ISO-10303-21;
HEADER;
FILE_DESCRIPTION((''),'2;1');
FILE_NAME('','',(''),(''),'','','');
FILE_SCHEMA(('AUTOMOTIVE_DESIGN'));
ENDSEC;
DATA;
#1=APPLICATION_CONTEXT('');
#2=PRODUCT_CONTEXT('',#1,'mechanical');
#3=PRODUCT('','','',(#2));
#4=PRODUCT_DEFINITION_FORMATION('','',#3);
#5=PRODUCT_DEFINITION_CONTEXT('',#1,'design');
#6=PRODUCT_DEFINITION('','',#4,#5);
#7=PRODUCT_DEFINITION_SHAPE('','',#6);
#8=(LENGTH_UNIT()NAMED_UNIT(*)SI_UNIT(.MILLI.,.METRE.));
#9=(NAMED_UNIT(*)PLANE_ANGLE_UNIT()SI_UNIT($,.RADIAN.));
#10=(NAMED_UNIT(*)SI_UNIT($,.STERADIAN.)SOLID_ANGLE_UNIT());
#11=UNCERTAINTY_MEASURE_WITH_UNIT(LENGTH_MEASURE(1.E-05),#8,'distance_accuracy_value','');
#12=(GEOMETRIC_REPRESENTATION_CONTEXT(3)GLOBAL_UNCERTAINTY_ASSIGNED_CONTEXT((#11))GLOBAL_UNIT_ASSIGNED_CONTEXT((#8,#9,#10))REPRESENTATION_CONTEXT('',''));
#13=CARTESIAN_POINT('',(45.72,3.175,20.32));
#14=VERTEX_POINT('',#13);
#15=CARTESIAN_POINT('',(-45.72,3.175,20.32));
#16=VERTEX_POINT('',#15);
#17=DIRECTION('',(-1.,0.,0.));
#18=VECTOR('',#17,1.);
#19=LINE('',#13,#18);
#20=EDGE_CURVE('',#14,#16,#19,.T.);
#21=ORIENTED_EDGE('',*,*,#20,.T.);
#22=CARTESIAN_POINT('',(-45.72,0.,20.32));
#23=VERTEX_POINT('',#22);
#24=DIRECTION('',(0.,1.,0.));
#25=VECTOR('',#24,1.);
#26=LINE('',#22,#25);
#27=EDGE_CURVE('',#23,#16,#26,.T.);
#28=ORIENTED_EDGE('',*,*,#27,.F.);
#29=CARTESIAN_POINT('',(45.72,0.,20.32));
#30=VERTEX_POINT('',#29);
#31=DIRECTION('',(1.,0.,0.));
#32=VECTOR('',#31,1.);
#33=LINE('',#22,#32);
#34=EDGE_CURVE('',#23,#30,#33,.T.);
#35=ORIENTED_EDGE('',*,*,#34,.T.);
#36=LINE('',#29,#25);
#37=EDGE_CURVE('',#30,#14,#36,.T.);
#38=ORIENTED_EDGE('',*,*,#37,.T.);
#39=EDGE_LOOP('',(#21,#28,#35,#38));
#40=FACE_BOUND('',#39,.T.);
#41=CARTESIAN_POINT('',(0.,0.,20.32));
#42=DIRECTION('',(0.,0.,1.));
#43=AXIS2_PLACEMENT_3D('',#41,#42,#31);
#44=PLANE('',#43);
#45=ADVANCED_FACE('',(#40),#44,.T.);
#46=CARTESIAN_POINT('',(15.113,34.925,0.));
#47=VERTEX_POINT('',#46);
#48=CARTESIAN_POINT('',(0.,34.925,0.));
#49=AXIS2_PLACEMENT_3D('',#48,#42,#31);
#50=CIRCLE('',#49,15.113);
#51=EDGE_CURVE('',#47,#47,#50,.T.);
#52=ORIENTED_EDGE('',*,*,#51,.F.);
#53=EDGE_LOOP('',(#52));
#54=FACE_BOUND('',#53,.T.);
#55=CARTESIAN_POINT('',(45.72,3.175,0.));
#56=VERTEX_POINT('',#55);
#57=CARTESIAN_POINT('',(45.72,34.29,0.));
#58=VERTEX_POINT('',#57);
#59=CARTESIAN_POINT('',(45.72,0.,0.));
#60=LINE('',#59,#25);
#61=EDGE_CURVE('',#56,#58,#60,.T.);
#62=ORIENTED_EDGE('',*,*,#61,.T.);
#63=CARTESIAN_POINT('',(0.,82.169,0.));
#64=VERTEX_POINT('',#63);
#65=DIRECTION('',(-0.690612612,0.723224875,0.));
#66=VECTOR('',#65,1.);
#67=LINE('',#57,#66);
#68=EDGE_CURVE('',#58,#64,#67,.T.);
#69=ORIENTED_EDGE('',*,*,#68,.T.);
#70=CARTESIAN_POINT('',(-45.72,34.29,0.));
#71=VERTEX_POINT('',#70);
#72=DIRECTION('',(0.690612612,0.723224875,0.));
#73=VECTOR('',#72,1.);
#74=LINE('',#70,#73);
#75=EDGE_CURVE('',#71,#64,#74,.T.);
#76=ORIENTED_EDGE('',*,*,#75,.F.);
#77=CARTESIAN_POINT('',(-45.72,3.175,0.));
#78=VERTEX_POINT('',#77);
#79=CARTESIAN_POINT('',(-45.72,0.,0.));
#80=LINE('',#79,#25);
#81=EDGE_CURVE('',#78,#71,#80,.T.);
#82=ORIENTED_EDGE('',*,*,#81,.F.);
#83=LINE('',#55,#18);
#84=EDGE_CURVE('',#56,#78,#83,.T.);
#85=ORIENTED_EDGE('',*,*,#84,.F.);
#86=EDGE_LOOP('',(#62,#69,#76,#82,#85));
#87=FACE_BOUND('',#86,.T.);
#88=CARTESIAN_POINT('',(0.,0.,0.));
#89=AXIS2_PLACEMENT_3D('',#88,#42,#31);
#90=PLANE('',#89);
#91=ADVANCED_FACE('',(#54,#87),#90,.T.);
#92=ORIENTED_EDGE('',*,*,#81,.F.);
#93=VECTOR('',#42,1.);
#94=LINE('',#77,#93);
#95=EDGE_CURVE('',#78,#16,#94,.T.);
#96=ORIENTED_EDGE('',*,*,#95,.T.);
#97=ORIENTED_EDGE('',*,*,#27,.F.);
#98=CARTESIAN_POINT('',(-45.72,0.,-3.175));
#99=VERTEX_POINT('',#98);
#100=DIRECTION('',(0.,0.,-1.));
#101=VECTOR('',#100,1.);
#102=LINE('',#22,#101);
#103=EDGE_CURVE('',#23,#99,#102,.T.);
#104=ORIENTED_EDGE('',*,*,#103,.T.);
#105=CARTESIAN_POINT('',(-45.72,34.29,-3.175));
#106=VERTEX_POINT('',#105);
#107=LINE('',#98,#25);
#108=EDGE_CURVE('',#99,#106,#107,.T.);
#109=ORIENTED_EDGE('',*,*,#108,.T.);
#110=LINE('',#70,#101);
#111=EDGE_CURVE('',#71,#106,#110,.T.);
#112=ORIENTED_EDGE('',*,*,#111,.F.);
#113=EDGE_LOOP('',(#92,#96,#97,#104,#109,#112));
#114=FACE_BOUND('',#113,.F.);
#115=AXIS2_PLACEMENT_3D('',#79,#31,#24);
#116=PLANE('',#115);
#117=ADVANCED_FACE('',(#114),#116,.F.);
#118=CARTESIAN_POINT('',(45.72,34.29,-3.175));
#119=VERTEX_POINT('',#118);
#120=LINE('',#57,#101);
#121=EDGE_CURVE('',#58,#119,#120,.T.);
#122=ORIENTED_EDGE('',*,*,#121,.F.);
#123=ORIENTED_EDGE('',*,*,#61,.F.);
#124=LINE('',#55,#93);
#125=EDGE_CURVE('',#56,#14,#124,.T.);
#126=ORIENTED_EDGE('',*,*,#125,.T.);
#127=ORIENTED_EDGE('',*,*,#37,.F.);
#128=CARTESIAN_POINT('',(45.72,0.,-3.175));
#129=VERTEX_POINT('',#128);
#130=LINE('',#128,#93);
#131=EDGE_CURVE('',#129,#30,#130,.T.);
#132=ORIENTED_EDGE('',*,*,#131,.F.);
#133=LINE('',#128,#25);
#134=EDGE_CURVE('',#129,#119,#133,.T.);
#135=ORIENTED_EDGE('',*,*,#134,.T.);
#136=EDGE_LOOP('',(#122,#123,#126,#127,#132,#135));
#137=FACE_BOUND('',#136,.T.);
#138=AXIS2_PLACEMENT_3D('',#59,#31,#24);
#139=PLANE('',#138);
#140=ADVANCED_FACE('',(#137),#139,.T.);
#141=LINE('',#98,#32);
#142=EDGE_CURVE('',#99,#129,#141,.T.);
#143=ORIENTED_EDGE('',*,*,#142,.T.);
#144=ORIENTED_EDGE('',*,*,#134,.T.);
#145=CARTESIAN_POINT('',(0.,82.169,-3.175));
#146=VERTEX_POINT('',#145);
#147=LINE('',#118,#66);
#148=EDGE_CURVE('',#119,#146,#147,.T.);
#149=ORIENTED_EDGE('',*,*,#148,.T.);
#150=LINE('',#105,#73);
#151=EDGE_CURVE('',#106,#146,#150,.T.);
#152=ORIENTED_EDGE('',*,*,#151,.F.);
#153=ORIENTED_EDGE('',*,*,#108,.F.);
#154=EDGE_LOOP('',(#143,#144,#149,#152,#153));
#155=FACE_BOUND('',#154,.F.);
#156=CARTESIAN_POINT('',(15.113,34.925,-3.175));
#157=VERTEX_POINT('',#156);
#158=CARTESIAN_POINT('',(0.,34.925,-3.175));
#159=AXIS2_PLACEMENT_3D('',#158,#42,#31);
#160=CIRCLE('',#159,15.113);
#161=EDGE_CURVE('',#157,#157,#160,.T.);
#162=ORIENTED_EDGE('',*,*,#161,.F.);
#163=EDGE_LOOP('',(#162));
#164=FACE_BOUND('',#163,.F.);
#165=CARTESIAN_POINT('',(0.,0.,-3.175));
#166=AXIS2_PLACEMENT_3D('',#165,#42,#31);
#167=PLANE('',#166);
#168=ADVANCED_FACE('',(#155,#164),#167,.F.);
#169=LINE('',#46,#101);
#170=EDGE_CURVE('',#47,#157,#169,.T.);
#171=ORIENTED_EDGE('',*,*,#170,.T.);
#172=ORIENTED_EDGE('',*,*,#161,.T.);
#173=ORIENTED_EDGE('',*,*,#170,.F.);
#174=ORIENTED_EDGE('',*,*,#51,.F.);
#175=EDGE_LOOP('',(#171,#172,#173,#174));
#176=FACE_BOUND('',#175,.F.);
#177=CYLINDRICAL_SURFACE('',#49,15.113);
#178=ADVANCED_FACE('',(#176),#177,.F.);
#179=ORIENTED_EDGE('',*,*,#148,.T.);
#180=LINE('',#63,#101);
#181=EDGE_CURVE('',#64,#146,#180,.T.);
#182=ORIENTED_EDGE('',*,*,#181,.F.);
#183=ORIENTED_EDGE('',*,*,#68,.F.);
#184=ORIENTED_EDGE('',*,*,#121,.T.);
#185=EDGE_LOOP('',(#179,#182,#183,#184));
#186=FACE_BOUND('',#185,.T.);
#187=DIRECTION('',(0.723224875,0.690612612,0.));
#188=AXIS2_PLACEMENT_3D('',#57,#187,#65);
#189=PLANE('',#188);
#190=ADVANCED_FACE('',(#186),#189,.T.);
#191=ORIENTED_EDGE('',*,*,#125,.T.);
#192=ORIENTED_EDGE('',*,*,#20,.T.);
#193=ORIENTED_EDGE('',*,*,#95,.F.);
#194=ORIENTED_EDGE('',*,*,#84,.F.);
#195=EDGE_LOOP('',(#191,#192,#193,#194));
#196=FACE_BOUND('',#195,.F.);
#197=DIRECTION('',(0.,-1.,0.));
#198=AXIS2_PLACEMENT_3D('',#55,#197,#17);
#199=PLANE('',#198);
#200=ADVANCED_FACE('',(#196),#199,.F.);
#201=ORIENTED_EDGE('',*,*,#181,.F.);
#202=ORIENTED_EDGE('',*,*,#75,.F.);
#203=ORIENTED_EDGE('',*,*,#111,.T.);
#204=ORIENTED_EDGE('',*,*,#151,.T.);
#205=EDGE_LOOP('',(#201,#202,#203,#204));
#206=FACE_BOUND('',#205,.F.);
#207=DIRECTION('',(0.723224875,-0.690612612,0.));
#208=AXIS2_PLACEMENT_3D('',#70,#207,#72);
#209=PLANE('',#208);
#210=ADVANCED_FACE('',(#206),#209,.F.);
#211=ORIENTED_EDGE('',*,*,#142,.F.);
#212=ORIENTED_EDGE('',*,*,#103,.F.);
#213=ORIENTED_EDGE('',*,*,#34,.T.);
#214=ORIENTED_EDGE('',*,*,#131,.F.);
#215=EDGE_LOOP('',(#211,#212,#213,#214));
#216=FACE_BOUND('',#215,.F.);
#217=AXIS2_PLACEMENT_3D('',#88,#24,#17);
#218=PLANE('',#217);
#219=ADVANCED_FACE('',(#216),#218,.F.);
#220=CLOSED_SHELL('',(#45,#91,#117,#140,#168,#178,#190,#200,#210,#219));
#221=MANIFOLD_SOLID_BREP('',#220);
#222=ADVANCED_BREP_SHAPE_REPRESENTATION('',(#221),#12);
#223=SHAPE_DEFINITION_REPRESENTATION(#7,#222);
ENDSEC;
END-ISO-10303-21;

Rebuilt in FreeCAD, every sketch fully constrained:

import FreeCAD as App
import Part
import Sketcher
Q = App.Units.Quantity

doc = App.newDocument("Part")
body = doc.addObject("PartDesign::Body", "Body")

# Sketch on XY plane
sketch1 = doc.addObject("Sketcher::SketchObject", "Sketch")
body.addObject(sketch1)
sketch1.AttachmentSupport = (doc.XY_Plane, [""])
sketch1.MapMode = "FlatFace"
sketch1.addGeometry([
    Part.LineSegment(App.Vector(-46, 0, 0), App.Vector(46, 0, 0)),  # 0
    Part.LineSegment(App.Vector(46, 0, 0), App.Vector(46, 34, 0)),  # 1
    Part.LineSegment(App.Vector(46, 34, 0), App.Vector(0, 82, 0)),  # 2
    Part.LineSegment(App.Vector(0, 82, 0), App.Vector(-46, 34, 0)),  # 3
    Part.LineSegment(App.Vector(-46, 34, 0), App.Vector(-46, 0, 0)),  # 4
], False)
sketch1.addConstraint([
    Sketcher.Constraint("Coincident", 0, 2, 1, 1),
    Sketcher.Constraint("Coincident", 1, 2, 2, 1),
    Sketcher.Constraint("Coincident", 2, 2, 3, 1),
    Sketcher.Constraint("Coincident", 3, 2, 4, 1),
    Sketcher.Constraint("Coincident", 4, 2, 0, 1),
    Sketcher.Constraint("Horizontal", 0),
    Sketcher.Constraint("Vertical", 1),
    Sketcher.Constraint("Vertical", 4),
    Sketcher.Constraint("Symmetric", 0, 2, 4, 2, -1, 1),
    Sketcher.Constraint("PointOnObject", 2, 2, -2),
    Sketcher.Constraint("Horizontal", 1, 2, 3, 2),
    Sketcher.Constraint("DistanceY", 1, 1, 1, 2, Q("1.35 in")),
    Sketcher.Constraint("DistanceX", -1, 1, 0, 2, Q("1.8 in")),
    Sketcher.Constraint("DistanceY", -1, 1, 2, 2, Q("3.235 in")),
])
pad1 = doc.addObject("PartDesign::Pad", "Pad")
body.addObject(pad1)
pad1.Profile = sketch1
pad1.Length = Q("0.125 in")
pad1.Reversed = True

# Sketch on XY plane
sketch2 = doc.addObject("Sketcher::SketchObject", "Sketch001")
body.addObject(sketch2)
sketch2.AttachmentSupport = (doc.XY_Plane, [""])
sketch2.MapMode = "FlatFace"
sketch2.addGeometry([
    Part.LineSegment(App.Vector(-45.7, 3.2, 0), App.Vector(-45.7, 0, 0)),
    Part.LineSegment(App.Vector(-45.7, 0, 0), App.Vector(45.7, 0, 0)),
    Part.LineSegment(App.Vector(45.7, 0, 0), App.Vector(45.7, 3.2, 0)),
    Part.LineSegment(App.Vector(45.7, 3.2, 0), App.Vector(-45.7, 3.2, 0)),
], False)
sketch2.addConstraint([
    Sketcher.Constraint("Coincident", 0, 2, 1, 1),
    Sketcher.Constraint("Coincident", 1, 2, 2, 1),
    Sketcher.Constraint("Coincident", 2, 2, 3, 1),
    Sketcher.Constraint("Coincident", 3, 2, 0, 1),
    Sketcher.Constraint("Vertical", 0),
    Sketcher.Constraint("Horizontal", 1),
    Sketcher.Constraint("Vertical", 2),
    Sketcher.Constraint("Horizontal", 3),
    Sketcher.Constraint("Symmetric", 0, 2, 1, 2, -1, 1),
    Sketcher.Constraint("DistanceY", 0, 2, 0, 1, Q("0.125 in")),
    Sketcher.Constraint("DistanceX", 1, 1, 1, 2, Q("3.6 in")),
])
pad2 = doc.addObject("PartDesign::Pad", "Pad001")
body.addObject(pad2)
pad2.Profile = sketch2
pad2.Length = Q("0.8 in")

# Sketch on XY plane
sketch3 = doc.addObject("Sketcher::SketchObject", "Sketch002")
body.addObject(sketch3)
sketch3.AttachmentSupport = (doc.XY_Plane, [""])
sketch3.MapMode = "FlatFace"
sketch3.addGeometry(Part.Circle(App.Vector(0, 35, 0), App.Vector(0, 0, 1), 15), False)
sketch3.addConstraint([
    Sketcher.Constraint("PointOnObject", 0, 3, -2),
    Sketcher.Constraint("Diameter", 0, Q("1.19 in")),
    Sketcher.Constraint("DistanceY", -1, 1, 0, 3, Q("1.375 in")),
])
pocket1 = doc.addObject("PartDesign::Pocket", "Pocket")
body.addObject(pocket1)
pocket1.Profile = sketch3
pocket1.Type = "ThroughAll"

doc.recompute()
